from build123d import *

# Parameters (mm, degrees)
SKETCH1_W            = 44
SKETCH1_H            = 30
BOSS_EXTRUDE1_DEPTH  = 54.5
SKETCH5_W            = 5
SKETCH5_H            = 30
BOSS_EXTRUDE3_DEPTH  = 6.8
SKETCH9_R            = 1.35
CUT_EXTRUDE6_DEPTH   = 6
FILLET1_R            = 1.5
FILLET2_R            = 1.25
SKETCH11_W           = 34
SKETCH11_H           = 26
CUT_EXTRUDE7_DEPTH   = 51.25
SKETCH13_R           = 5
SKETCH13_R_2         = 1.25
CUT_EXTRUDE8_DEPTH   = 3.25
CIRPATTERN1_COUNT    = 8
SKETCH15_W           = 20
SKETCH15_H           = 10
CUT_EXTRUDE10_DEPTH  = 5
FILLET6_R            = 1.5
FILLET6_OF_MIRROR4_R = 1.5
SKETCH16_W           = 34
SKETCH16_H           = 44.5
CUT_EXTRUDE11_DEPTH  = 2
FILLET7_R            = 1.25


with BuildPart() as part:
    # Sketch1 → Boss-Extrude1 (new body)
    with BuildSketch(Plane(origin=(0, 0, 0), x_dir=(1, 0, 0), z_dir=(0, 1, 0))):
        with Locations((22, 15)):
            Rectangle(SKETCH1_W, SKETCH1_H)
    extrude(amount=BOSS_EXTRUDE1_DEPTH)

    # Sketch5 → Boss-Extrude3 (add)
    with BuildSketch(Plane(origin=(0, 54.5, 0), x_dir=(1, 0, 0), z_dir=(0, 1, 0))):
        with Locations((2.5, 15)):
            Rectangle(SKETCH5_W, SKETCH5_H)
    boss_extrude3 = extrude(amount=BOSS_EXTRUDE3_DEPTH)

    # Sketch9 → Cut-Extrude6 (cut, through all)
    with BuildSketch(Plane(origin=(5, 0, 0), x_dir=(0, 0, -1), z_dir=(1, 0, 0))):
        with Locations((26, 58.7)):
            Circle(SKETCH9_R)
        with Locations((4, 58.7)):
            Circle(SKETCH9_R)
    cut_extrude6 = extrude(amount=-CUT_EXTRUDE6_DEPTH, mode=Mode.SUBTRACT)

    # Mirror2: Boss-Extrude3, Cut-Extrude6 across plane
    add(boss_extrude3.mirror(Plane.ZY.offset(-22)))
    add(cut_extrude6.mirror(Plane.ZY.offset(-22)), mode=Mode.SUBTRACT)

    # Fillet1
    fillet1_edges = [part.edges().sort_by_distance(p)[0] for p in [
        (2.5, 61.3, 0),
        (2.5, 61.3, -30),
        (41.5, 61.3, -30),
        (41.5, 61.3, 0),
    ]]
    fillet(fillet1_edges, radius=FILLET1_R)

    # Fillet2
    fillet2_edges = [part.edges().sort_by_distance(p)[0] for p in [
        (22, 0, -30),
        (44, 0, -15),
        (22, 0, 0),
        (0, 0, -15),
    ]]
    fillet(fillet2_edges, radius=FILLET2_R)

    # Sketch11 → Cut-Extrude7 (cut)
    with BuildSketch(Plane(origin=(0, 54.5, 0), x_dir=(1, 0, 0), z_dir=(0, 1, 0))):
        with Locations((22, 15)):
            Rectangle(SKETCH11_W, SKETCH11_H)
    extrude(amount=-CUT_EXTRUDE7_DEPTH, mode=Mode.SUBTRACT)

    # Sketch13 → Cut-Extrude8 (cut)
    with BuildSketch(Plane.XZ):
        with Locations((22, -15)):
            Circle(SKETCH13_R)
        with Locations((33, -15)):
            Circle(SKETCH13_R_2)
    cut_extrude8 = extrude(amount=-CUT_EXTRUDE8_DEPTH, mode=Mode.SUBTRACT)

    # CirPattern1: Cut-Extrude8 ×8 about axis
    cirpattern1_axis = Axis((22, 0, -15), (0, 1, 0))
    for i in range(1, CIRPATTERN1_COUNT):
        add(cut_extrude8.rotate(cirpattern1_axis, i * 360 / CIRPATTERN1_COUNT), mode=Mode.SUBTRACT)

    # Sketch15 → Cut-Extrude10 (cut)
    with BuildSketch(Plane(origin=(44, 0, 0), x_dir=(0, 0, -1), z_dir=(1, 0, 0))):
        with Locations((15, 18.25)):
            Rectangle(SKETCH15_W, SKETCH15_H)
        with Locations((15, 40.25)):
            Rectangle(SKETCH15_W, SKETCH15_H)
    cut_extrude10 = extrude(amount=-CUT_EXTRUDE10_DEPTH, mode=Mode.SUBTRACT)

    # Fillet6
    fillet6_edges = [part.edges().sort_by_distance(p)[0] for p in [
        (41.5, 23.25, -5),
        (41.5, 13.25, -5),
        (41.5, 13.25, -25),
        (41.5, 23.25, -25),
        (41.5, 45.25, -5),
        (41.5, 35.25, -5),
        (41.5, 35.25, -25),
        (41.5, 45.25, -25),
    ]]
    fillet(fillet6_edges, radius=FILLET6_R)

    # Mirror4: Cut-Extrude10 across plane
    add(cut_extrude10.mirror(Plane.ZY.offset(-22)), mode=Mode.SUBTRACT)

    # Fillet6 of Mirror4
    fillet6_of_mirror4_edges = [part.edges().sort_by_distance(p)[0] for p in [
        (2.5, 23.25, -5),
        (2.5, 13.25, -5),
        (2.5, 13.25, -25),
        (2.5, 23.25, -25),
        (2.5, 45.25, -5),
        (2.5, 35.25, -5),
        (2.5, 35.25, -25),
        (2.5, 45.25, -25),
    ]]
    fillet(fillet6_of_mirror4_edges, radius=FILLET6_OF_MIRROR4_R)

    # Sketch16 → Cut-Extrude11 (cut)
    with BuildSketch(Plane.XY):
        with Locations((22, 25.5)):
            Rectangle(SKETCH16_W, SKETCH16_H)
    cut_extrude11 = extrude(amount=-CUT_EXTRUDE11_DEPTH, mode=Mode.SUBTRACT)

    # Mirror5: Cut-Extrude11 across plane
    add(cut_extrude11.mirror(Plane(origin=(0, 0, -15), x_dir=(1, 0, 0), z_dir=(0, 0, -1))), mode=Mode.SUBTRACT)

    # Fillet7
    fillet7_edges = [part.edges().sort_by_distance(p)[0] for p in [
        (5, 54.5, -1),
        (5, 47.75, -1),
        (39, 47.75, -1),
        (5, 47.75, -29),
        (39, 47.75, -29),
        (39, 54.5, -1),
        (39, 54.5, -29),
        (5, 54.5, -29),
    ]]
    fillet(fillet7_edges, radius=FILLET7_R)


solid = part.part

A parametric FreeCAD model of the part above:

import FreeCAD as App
import Part
import Sketcher


def edges_at(feature, points):
    """Names of the edges that pass closest to the given points."""
    edges = feature.Shape.Edges
    near = lambda p: min(range(len(edges)), key=lambda i: edges[i].distToShape(Part.Vertex(*p))[0])
    return sorted({f"Edge{near(p) + 1}" for p in points})


def add_polygon(sketch, points):
    """Adds a closed chain of lines whose ends are joined by coincident constraints."""
    first, n = sketch.GeometryCount, len(points)
    for a, b in zip(points, points[1:] + points[:1]):
        sketch.addGeometry(Part.LineSegment(App.Vector(*a, 0), App.Vector(*b, 0)), False)
    for i in range(n):
        sketch.addConstraint(Sketcher.Constraint("Coincident", first + i, 2, first + (i + 1) % n, 1))

doc = App.newDocument("Part")
body = doc.addObject("PartDesign::Body", "Body")

sketch1 = doc.addObject("Sketcher::SketchObject", "Sketch")
body.addObject(sketch1)
sketch1.AttachmentSupport = (doc.XZ_Plane, [""])
sketch1.MapMode = "FlatFace"
add_polygon(sketch1, [(0, -30), (0, 0), (44, 0), (44, -30)])
sketch1.addConstraint(Sketcher.Constraint("Vertical", 0))
sketch1.addConstraint(Sketcher.Constraint("Horizontal", 1))
sketch1.addConstraint(Sketcher.Constraint("Vertical", 2))
sketch1.addConstraint(Sketcher.Constraint("Horizontal", 3))
sketch1.addConstraint(Sketcher.Constraint("Coincident", 0, 2, -1, 1))
sketch1.addConstraint(Sketcher.Constraint("DistanceX", 1, 1, 1, 2, 44.0))
sketch1.addConstraint(Sketcher.Constraint("DistanceY", 0, 1, 0, 2, 30.0))
pad1 = doc.addObject("PartDesign::Pad", "Pad")
body.addObject(pad1)
pad1.Profile = sketch1
pad1.Length = 54.5
pad1.Reversed = True

sketch2 = doc.addObject("Sketcher::SketchObject", "Sketch001")
body.addObject(sketch2)
sketch2.AttachmentSupport = (doc.XZ_Plane, [""])
sketch2.MapMode = "FlatFace"
sketch2.AttachmentOffset = App.Placement(App.Vector(0, 0, -54.5), App.Rotation())
add_polygon(sketch2, [(0, -30), (0, 0), (5, 0), (5, -30)])
sketch2.addConstraint(Sketcher.Constraint("Vertical", 0))
sketch2.addConstraint(Sketcher.Constraint("Horizontal", 1))
sketch2.addConstraint(Sketcher.Constraint("Vertical", 2))
sketch2.addConstraint(Sketcher.Constraint("Horizontal", 3))
sketch2.addConstraint(Sketcher.Constraint("Coincident", 0, 2, -1, 1))
sketch2.addConstraint(Sketcher.Constraint("DistanceX", 1, 1, 1, 2, 5.0))
sketch2.addConstraint(Sketcher.Constraint("DistanceY", 0, 1, 0, 2, 30.0))
pad2 = doc.addObject("PartDesign::Pad", "Pad001")
body.addObject(pad2)
pad2.Profile = sketch2
pad2.Length = 6.8
pad2.Reversed = True

sketch3 = doc.addObject("Sketcher::SketchObject", "Sketch002")
body.addObject(sketch3)
sketch3.AttachmentSupport = (doc.YZ_Plane, [""])
sketch3.MapMode = "FlatFace"
sketch3.AttachmentOffset = App.Placement(App.Vector(0, 0, 5), App.Rotation())
sketch3.addGeometry(Part.Circle(App.Vector(58.7, -26, 0), App.Vector(0, 0, 1), 1.35), False)
sketch3.addGeometry(Part.Circle(App.Vector(58.7, -4, 0), App.Vector(0, 0, 1), 1.35), False)
sketch3.addConstraint(Sketcher.Constraint("Equal", 0, 1))
sketch3.addConstraint(Sketcher.Constraint("Vertical", 0, 3, 1, 3))
sketch3.addConstraint(Sketcher.Constraint("Diameter", 0, 2.7))
sketch3.addConstraint(Sketcher.Constraint("DistanceY", 0, 3, -1, 1, 26.0))
sketch3.addConstraint(Sketcher.Constraint("DistanceY", 1, 3, -1, 1, 4.0))
sketch3.addConstraint(Sketcher.Constraint("DistanceX", -1, 1, 0, 3, 58.7))
pocket1 = doc.addObject("PartDesign::Pocket", "Pocket")
body.addObject(pocket1)
pocket1.Profile = sketch3
pocket1.Type = "ThroughAll"
doc.recompute()

datumplane = doc.addObject("PartDesign::Plane", "DatumPlane")
body.addObject(datumplane)
datumplane.AttachmentSupport = (doc.YZ_Plane, [""])
datumplane.MapMode = "FlatFace"
datumplane.AttachmentOffset = App.Placement(App.Vector(0, 0, 22), App.Rotation())
mirrored = doc.addObject("PartDesign::Mirrored", "Mirrored")
body.addObject(mirrored)
mirrored.Originals = [pad2, pocket1]
mirrored.MirrorPlane = (datumplane, [""])
body.Tip = mirrored
doc.recompute()

fillet = doc.addObject("PartDesign::Fillet", "Fillet")
body.addObject(fillet)
fillet.Base = (mirrored, edges_at(mirrored, [
    (2.5, 61.3, 0),
    (2.5, 61.3, -30),
    (41.5, 61.3, -30),
    (41.5, 61.3, 0),
]))
fillet.Radius = 1.5
doc.recompute()

fillet2 = doc.addObject("PartDesign::Fillet", "Fillet001")
body.addObject(fillet2)
fillet2.Base = (fillet, edges_at(fillet, [
    (22, 0, -30),
    (44, 0, -15),
    (22, 0, 0),
    (0, 0, -15),
]))
fillet2.Radius = 1.25

sketch4 = doc.addObject("Sketcher::SketchObject", "Sketch003")
body.addObject(sketch4)
sketch4.AttachmentSupport = (doc.XZ_Plane, [""])
sketch4.MapMode = "FlatFace"
sketch4.AttachmentOffset = App.Placement(App.Vector(0, 0, -54.5), App.Rotation())
add_polygon(sketch4, [(5, -28), (5, -2), (39, -2), (39, -28)])
sketch4.addConstraint(Sketcher.Constraint("Vertical", 0))
sketch4.addConstraint(Sketcher.Constraint("Horizontal", 1))
sketch4.addConstraint(Sketcher.Constraint("Vertical", 2))
sketch4.addConstraint(Sketcher.Constraint("Horizontal", 3))
sketch4.addConstraint(Sketcher.Constraint("DistanceX", 1, 1, 1, 2, 34.0))
sketch4.addConstraint(Sketcher.Constraint("DistanceY", 0, 1, 0, 2, 26.0))
sketch4.addConstraint(Sketcher.Constraint("DistanceX", -1, 1, 0, 2, 5.0))
sketch4.addConstraint(Sketcher.Constraint("DistanceY", 0, 2, -1, 1, 2.0))
pocket2 = doc.addObject("PartDesign::Pocket", "Pocket001")
body.addObject(pocket2)
pocket2.Profile = sketch4
pocket2.Length = 51.25
pocket2.Reversed = True

sketch5 = doc.addObject("Sketcher::SketchObject", "Sketch004")
body.addObject(sketch5)
sketch5.AttachmentSupport = (doc.XZ_Plane, [""])
sketch5.MapMode = "FlatFace"
sketch5.addGeometry(Part.Circle(App.Vector(22, -15, 0), App.Vector(0, 0, 1), 5), False)
sketch5.addGeometry(Part.Circle(App.Vector(33, -15, 0), App.Vector(0, 0, 1), 1.25), False)
sketch5.addConstraint(Sketcher.Constraint("Horizontal", 0, 3, 1, 3))
sketch5.addConstraint(Sketcher.Constraint("Diameter", 0, 10.0))
sketch5.addConstraint(Sketcher.Constraint("Diameter", 1, 2.5))
sketch5.addConstraint(Sketcher.Constraint("DistanceX", -1, 1, 0, 3, 22.0))
sketch5.addConstraint(Sketcher.Constraint("DistanceY", 0, 3, -1, 1, 15.0))
sketch5.addConstraint(Sketcher.Constraint("DistanceX", -1, 1, 1, 3, 33.0))
pocket3 = doc.addObject("PartDesign::Pocket", "Pocket002")
body.addObject(pocket3)
pocket3.Profile = sketch5
pocket3.Length = 3.25
doc.recompute()

datumline = doc.addObject("PartDesign::Line", "DatumLine")
body.addObject(datumline)
datumline.Placement = App.Placement(App.Vector(22, 0, -15), App.Rotation(App.Vector(0, 0, 1), App.Vector(0, 1, 0)))
polarpattern = doc.addObject("PartDesign::PolarPattern", "PolarPattern")
body.addObject(polarpattern)
polarpattern.Originals = [pocket3]
polarpattern.Axis = (datumline, [""])
polarpattern.Angle = 360
polarpattern.Occurrences = 8
body.Tip = polarpattern

sketch6 = doc.addObject("Sketcher::SketchObject", "Sketch005")
body.addObject(sketch6)
sketch6.AttachmentSupport = (doc.YZ_Plane, [""])
sketch6.MapMode = "FlatFace"
sketch6.AttachmentOffset = App.Placement(App.Vector(0, 0, 44), App.Rotation())
add_polygon(sketch6, [(23.25, -5), (13.25, -5), (13.25, -25), (23.25, -25)])
add_polygon(sketch6, [(45.25, -5), (35.25, -5), (35.25, -25), (45.25, -25)])
sketch6.addConstraint(Sketcher.Constraint("Horizontal", 0))
sketch6.addConstraint(Sketcher.Constraint("Vertical", 1))
sketch6.addConstraint(Sketcher.Constraint("Horizontal", 2))
sketch6.addConstraint(Sketcher.Constraint("Vertical", 3))
sketch6.addConstraint(Sketcher.Constraint("Horizontal", 4))
sketch6.addConstraint(Sketcher.Constraint("Vertical", 5))
sketch6.addConstraint(Sketcher.Constraint("Horizontal", 6))
sketch6.addConstraint(Sketcher.Constraint("Vertical", 7))
sketch6.addConstraint(Sketcher.Constraint("Horizontal", 3, 2, 4, 2))
sketch6.addConstraint(Sketcher.Constraint("Horizontal", 2, 2, 5, 2))
sketch6.addConstraint(Sketcher.Constraint("Equal", 2, 4))
sketch6.addConstraint(Sketcher.Constraint("DistanceX", 0, 2, 0, 1, 10.0))
sketch6.addConstraint(Sketcher.Constraint("DistanceY", 1, 2, 1, 1, 20.0))
sketch6.addConstraint(Sketcher.Constraint("DistanceY", 0, 2, -1, 1, 5.0))
sketch6.addConstraint(Sketcher.Constraint("DistanceX", 3, 2, 4, 2, 12.0))
sketch6.addConstraint(Sketcher.Constraint("DistanceX", -1, 1, 0, 2, 13.25))
pocket4 = doc.addObject("PartDesign::Pocket", "Pocket003")
body.addObject(pocket4)
pocket4.Profile = sketch6
pocket4.Length = 5
doc.recompute()

fillet3 = doc.addObject("PartDesign::Fillet", "Fillet002")
body.addObject(fillet3)
fillet3.Base = (pocket4, edges_at(pocket4, [
    (41.5, 23.25, -5),
    (41.5, 13.25, -5),
    (41.5, 13.25, -25),
    (41.5, 23.25, -25),
    (41.5, 45.25, -5),
    (41.5, 35.25, -5),
    (41.5, 35.25, -25),
    (41.5, 45.25, -25),
]))
fillet3.Radius = 1.5
doc.recompute()

datumplane2 = doc.addObject("PartDesign::Plane", "DatumPlane001")
body.addObject(datumplane2)
datumplane2.AttachmentSupport = (doc.YZ_Plane, [""])
datumplane2.MapMode = "FlatFace"
datumplane2.AttachmentOffset = App.Placement(App.Vector(0, 0, 22), App.Rotation())
mirrored2 = doc.addObject("PartDesign::Mirrored", "Mirrored001")
body.addObject(mirrored2)
mirrored2.Originals = [pocket4]
mirrored2.MirrorPlane = (datumplane2, [""])
body.Tip = mirrored2
doc.recompute()

fillet4 = doc.addObject("PartDesign::Fillet", "Fillet003")
body.addObject(fillet4)
fillet4.Base = (mirrored2, edges_at(mirrored2, [
    (2.5, 23.25, -5),
    (2.5, 13.25, -5),
    (2.5, 13.25, -25),
    (2.5, 23.25, -25),
    (2.5, 45.25, -5),
    (2.5, 35.25, -5),
    (2.5, 35.25, -25),
    (2.5, 45.25, -25),
]))
fillet4.Radius = 1.5

sketch7 = doc.addObject("Sketcher::SketchObject", "Sketch006")
body.addObject(sketch7)
sketch7.AttachmentSupport = (doc.XY_Plane, [""])
sketch7.MapMode = "FlatFace"
add_polygon(sketch7, [(5, 47.75), (5, 3.25), (39, 3.25), (39, 47.75)])
sketch7.addConstraint(Sketcher.Constraint("Vertical", 0))
sketch7.addConstraint(Sketcher.Constraint("Horizontal", 1))
sketch7.addConstraint(Sketcher.Constraint("Vertical", 2))
sketch7.addConstraint(Sketcher.Constraint("Horizontal", 3))
sketch7.addConstraint(Sketcher.Constraint("DistanceX", 1, 1, 1, 2, 34.0))
sketch7.addConstraint(Sketcher.Constraint("DistanceY", 0, 2, 0, 1, 44.5))
sketch7.addConstraint(Sketcher.Constraint("DistanceX", -1, 1, 0, 2, 5.0))
sketch7.addConstraint(Sketcher.Constraint("DistanceY", -1, 1, 0, 2, 3.25))
pocket5 = doc.addObject("PartDesign::Pocket", "Pocket004")
body.addObject(pocket5)
pocket5.Profile = sketch7
pocket5.Length = 2
doc.recompute()

datumplane3 = doc.addObject("PartDesign::Plane", "DatumPlane002")
body.addObject(datumplane3)
datumplane3.AttachmentSupport = (doc.XY_Plane, [""])
datumplane3.MapMode = "FlatFace"
datumplane3.AttachmentOffset = App.Placement(App.Vector(0, 0, -15), App.Rotation())
mirrored3 = doc.addObject("PartDesign::Mirrored", "Mirrored002")
body.addObject(mirrored3)
mirrored3.Originals = [pocket5]
mirrored3.MirrorPlane = (datumplane3, [""])
body.Tip = mirrored3
doc.recompute()

fillet5 = doc.addObject("PartDesign::Fillet", "Fillet004")
body.addObject(fillet5)
fillet5.Base = (mirrored3, edges_at(mirrored3, [
    (5, 54.5, -1),
    (5, 47.75, -1),
    (39, 47.75, -1),
    (5, 47.75, -29),
    (39, 47.75, -29),
    (39, 54.5, -1),
    (39, 54.5, -29),
    (5, 54.5, -29),
]))
fillet5.Radius = 1.25

doc.recompute()
